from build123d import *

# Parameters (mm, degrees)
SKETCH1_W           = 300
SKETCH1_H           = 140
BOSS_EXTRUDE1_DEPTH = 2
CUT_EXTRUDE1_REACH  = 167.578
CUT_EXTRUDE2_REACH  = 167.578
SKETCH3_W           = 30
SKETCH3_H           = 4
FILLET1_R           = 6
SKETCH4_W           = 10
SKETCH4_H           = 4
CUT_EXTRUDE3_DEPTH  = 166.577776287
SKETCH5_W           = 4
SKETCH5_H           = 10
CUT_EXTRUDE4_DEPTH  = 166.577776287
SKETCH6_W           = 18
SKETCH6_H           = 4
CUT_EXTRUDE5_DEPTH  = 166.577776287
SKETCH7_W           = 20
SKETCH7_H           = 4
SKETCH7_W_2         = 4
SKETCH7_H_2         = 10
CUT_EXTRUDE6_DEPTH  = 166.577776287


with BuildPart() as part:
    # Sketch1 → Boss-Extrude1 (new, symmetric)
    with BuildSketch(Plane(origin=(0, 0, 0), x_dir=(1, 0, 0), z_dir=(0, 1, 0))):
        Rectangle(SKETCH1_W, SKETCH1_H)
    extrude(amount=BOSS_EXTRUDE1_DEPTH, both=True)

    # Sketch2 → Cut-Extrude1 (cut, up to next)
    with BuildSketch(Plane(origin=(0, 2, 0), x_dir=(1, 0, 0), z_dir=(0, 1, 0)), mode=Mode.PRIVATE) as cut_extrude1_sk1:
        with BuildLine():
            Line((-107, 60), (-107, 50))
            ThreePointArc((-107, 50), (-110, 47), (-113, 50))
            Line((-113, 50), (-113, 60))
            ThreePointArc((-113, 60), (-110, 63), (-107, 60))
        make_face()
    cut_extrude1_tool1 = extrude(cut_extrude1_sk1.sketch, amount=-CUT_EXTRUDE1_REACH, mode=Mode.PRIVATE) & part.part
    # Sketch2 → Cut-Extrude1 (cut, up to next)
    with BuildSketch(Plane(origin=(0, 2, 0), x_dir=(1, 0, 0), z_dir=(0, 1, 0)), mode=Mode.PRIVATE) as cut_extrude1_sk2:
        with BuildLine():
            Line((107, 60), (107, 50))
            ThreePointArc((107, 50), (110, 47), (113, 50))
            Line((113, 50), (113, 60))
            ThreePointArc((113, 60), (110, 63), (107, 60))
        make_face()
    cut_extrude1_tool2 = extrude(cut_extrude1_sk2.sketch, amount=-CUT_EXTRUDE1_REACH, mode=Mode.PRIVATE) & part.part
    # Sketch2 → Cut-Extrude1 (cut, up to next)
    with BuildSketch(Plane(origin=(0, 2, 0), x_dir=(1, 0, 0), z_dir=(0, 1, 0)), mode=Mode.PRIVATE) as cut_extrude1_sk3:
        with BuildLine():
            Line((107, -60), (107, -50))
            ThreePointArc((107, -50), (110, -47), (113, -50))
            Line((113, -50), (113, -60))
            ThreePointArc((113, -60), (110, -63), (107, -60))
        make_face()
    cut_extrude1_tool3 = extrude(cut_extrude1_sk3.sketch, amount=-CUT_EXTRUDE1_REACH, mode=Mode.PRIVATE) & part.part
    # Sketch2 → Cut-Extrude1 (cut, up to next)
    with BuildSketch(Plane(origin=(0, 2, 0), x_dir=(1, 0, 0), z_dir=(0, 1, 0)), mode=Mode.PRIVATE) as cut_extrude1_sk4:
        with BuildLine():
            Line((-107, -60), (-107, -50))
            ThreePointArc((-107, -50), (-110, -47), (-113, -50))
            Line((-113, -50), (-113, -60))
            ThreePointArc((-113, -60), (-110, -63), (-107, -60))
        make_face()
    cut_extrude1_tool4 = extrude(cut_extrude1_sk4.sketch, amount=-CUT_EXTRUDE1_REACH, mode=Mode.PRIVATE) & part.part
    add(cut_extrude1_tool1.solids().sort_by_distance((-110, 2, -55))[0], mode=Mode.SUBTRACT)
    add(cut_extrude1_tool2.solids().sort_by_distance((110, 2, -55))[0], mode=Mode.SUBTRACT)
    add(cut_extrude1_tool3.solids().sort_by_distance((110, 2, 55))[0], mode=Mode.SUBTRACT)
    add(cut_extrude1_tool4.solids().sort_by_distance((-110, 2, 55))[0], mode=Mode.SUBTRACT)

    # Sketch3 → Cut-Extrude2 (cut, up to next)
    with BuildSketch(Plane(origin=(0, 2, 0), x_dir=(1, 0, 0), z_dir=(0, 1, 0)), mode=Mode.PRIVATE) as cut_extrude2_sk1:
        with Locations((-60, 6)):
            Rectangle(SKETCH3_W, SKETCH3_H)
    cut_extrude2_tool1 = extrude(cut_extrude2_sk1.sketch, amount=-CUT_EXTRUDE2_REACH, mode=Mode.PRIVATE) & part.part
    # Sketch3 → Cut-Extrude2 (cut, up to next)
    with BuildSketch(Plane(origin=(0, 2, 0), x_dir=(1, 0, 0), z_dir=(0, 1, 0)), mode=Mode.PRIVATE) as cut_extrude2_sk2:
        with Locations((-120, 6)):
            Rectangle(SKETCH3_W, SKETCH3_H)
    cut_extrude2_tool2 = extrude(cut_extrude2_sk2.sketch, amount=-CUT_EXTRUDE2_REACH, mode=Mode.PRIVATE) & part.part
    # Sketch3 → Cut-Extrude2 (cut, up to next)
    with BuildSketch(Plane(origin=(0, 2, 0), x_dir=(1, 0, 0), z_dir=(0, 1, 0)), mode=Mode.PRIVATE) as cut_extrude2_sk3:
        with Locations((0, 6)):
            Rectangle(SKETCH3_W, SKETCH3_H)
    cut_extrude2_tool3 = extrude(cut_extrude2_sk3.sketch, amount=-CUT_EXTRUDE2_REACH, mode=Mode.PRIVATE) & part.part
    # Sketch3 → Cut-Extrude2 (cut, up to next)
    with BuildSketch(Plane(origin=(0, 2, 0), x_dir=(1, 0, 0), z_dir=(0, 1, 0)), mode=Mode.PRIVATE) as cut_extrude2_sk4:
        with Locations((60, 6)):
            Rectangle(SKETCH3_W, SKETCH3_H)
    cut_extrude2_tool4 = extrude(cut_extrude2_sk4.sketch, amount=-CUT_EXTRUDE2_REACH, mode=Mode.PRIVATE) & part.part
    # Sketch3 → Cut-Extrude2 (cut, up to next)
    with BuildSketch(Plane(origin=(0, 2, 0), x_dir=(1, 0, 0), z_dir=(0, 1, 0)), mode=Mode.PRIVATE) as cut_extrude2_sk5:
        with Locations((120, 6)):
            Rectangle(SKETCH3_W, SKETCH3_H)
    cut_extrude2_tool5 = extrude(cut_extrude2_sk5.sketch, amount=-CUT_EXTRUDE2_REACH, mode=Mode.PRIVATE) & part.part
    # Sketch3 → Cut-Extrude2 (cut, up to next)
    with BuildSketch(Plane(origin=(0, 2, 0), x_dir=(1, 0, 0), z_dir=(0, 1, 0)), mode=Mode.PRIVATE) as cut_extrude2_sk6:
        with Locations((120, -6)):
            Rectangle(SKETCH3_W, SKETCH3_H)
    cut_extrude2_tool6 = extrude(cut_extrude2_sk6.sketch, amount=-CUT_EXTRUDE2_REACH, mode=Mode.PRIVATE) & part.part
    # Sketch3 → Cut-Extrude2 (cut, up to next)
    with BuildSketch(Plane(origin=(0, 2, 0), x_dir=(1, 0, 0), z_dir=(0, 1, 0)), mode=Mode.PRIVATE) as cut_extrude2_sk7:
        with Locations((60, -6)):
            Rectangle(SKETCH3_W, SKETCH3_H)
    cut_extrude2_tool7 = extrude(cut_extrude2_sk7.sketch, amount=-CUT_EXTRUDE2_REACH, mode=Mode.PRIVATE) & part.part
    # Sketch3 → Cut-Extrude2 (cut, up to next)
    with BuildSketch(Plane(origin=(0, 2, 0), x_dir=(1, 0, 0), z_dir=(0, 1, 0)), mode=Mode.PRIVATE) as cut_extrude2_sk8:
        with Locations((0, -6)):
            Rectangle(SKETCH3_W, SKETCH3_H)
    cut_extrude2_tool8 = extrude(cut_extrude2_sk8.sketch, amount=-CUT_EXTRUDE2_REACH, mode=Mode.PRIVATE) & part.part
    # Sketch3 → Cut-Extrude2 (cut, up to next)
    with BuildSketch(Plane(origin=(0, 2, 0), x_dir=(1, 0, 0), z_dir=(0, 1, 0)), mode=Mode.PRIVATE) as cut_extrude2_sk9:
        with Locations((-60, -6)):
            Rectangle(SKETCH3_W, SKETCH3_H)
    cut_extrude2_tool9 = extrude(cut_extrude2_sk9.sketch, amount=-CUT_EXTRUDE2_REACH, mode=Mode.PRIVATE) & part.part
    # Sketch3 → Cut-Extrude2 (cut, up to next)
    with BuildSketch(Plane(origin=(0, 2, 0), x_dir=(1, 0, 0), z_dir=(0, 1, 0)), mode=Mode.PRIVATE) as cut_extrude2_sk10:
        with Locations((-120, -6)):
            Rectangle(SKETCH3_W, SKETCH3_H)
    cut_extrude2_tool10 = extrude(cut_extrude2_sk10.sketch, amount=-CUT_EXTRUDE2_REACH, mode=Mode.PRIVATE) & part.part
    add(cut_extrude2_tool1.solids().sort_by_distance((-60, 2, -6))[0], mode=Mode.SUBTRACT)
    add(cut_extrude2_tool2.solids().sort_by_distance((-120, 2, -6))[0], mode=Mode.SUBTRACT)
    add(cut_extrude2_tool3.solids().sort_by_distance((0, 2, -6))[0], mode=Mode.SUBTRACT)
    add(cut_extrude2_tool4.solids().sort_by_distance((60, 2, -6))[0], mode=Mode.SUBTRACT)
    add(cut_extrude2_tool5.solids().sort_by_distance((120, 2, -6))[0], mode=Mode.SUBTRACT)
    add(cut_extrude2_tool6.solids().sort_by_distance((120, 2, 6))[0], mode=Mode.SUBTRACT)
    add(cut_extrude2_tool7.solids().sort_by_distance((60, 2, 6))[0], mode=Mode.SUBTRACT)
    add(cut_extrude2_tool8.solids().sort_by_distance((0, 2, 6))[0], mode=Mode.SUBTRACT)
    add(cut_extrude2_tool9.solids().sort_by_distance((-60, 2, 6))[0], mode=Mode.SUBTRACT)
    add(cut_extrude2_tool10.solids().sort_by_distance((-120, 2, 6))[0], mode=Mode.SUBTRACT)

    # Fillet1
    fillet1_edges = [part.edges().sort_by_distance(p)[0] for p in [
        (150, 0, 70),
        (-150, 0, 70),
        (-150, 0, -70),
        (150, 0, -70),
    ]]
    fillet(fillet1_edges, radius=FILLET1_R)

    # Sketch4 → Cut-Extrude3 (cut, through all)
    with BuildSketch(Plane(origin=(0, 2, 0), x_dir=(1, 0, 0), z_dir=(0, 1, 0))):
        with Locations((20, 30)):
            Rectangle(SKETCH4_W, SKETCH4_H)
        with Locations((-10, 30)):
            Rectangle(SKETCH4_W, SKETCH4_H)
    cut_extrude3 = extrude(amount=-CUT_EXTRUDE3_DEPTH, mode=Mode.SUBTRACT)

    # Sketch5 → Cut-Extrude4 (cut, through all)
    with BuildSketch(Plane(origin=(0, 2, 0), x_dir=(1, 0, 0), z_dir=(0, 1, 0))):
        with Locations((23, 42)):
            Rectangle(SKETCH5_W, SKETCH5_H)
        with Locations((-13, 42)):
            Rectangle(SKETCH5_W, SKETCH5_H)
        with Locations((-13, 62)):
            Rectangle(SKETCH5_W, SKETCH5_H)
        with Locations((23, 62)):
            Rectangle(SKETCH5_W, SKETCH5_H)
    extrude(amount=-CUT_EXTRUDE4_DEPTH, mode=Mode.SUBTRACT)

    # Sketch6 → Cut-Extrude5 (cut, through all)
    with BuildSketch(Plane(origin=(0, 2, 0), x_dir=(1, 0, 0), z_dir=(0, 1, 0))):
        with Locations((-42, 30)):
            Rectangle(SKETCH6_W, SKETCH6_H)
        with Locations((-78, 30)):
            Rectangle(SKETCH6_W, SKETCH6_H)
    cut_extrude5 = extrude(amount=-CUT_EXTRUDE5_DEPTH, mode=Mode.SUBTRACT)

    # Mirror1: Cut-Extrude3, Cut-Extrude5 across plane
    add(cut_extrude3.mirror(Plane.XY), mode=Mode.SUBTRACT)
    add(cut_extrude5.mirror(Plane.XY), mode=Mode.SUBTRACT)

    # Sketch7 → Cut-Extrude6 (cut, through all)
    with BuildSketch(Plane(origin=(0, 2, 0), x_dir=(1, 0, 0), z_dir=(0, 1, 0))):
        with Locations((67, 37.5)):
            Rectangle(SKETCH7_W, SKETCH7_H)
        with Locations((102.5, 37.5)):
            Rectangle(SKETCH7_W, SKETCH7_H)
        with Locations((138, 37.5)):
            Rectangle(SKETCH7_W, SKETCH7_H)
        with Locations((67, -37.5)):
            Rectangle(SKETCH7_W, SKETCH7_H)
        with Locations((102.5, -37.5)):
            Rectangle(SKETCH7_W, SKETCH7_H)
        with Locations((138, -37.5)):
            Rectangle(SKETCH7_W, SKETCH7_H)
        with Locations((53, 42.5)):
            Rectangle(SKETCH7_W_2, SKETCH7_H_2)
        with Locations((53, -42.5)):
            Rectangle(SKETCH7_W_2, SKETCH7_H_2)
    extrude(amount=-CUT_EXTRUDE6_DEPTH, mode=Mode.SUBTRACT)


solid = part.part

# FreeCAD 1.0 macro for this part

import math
import FreeCAD as App
import Part
import Sketcher


def edges_at(feature, points):
    """Names of the edges that pass closest to the given points."""
    edges = feature.Shape.Edges
    near = lambda p: min(range(len(edges)), key=lambda i: edges[i].distToShape(Part.Vertex(*p))[0])
    return sorted({f"Edge{near(p) + 1}" for p in points})


def add_polygon(sketch, points):
    """Adds a closed chain of lines whose ends are joined by coincident constraints."""
    first, n = sketch.GeometryCount, len(points)
    for a, b in zip(points, points[1:] + points[:1]):
        sketch.addGeometry(Part.LineSegment(App.Vector(*a, 0), App.Vector(*b, 0)), False)
    for i in range(n):
        sketch.addConstraint(Sketcher.Constraint("Coincident", first + i, 2, first + (i + 1) % n, 1))

doc = App.newDocument("Part")
body = doc.addObject("PartDesign::Body", "Body")

# Sketch on XZ plane
sketch1 = doc.addObject("Sketcher::SketchObject", "Sketch")
body.addObject(sketch1)
sketch1.AttachmentSupport = (doc.XZ_Plane, [""])
sketch1.MapMode = "FlatFace"
add_polygon(sketch1, [(-150, -70), (-150, 70), (150, 70), (150, -70)])  # lines 0-3
sketch1.addConstraint(Sketcher.Constraint("Vertical", 0))
sketch1.addConstraint(Sketcher.Constraint("Horizontal", 1))
sketch1.addConstraint(Sketcher.Constraint("Vertical", 2))
sketch1.addConstraint(Sketcher.Constraint("Horizontal", 3))
sketch1.addConstraint(Sketcher.Constraint("Symmetric", 0, 2, 2, 2, -1, 1))
sketch1.addConstraint(Sketcher.Constraint("DistanceX", 1, 1, 1, 2, 300.0))
sketch1.addConstraint(Sketcher.Constraint("DistanceY", 0, 1, 0, 2, 140.0))
pad1 = doc.addObject("PartDesign::Pad", "Pad")
body.addObject(pad1)
pad1.Profile = sketch1
pad1.Length = 4
pad1.Midplane = True

# Sketch on XZ plane
sketch2 = doc.addObject("Sketcher::SketchObject", "Sketch001")
body.addObject(sketch2)
sketch2.AttachmentSupport = (doc.XZ_Plane, [""])
sketch2.MapMode = "FlatFace"
sketch2.AttachmentOffset = App.Placement(App.Vector(0, 0, -2), App.Rotation())
sketch2.addGeometry(Part.LineSegment(App.Vector(-107, -50, 0), App.Vector(-107, -60, 0)), False)
sketch2.addGeometry(Part.ArcOfCircle(Part.Circle(App.Vector(-110, -60, 0), App.Vector(0, 0, 1), 3), math.radians(180), math.radians(360)), False)
sketch2.addGeometry(Part.LineSegment(App.Vector(-113, -60, 0), App.Vector(-113, -50, 0)), False)
sketch2.addGeometry(Part.ArcOfCircle(Part.Circle(App.Vector(-110, -50, 0), App.Vector(0, 0, 1), 3), math.radians(0), math.radians(180)), False)
sketch2.addConstraint(Sketcher.Constraint("Tangent", 0, 2, 1, 2))
sketch2.addConstraint(Sketcher.Constraint("Tangent", 1, 1, 2, 1))
sketch2.addConstraint(Sketcher.Constraint("Tangent", 2, 2, 3, 2))
sketch2.addConstraint(Sketcher.Constraint("Tangent", 3, 1, 0, 1))
sketch2.addConstraint(Sketcher.Constraint("Vertical", 0))
sketch2.addConstraint(Sketcher.Constraint("Vertical", 2))
sketch2.addConstraint(Sketcher.Constraint("Radius", 1, 3.0))
sketch2.addConstraint(Sketcher.Constraint("DistanceY", 0, 2, 0, 1, 10.0))
sketch2.addConstraint(Sketcher.Constraint("DistanceX", 1, 3, -1, 1, 110.0))
sketch2.addConstraint(Sketcher.Constraint("DistanceY", 1, 3, -1, 1, 60.0))
pocket1 = doc.addObject("PartDesign::Pocket", "Pocket")
body.addObject(pocket1)
pocket1.Profile = sketch2
pocket1.Type = "UpToFirst"
pocket1.Reversed = True

# Sketch on XZ plane
sketch3 = doc.addObject("Sketcher::SketchObject", "Sketch002")
body.addObject(sketch3)
sketch3.AttachmentSupport = (doc.XZ_Plane, [""])
sketch3.MapMode = "FlatFace"
sketch3.AttachmentOffset = App.Placement(App.Vector(0, 0, -2), App.Rotation())
sketch3.addGeometry(Part.LineSegment(App.Vector(107, -60, 0), App.Vector(107, -50, 0)), False)
sketch3.addGeometry(Part.ArcOfCircle(Part.Circle(App.Vector(110, -50, 0), App.Vector(0, 0, 1), 3), math.radians(0), math.radians(180)), False)
sketch3.addGeometry(Part.LineSegment(App.Vector(113, -50, 0), App.Vector(113, -60, 0)), False)
sketch3.addGeometry(Part.ArcOfCircle(Part.Circle(App.Vector(110, -60, 0), App.Vector(0, 0, 1), 3), math.radians(180), math.radians(360)), False)
sketch3.addConstraint(Sketcher.Constraint("Tangent", 0, 2, 1, 2))
sketch3.addConstraint(Sketcher.Constraint("Tangent", 1, 1, 2, 1))
sketch3.addConstraint(Sketcher.Constraint("Tangent", 2, 2, 3, 2))
sketch3.addConstraint(Sketcher.Constraint("Tangent", 3, 1, 0, 1))
sketch3.addConstraint(Sketcher.Constraint("Vertical", 0))
sketch3.addConstraint(Sketcher.Constraint("Vertical", 2))
sketch3.addConstraint(Sketcher.Constraint("Radius", 1, 3.0))
sketch3.addConstraint(Sketcher.Constraint("DistanceY", 0, 1, 0, 2, 10.0))
sketch3.addConstraint(Sketcher.Constraint("DistanceX", -1, 1, 1, 3, 110.0))
sketch3.addConstraint(Sketcher.Constraint("DistanceY", 1, 3, -1, 1, 50.0))
pocket2 = doc.addObject("PartDesign::Pocket", "Pocket001")
body.addObject(pocket2)
pocket2.Profile = sketch3
pocket2.Type = "UpToFirst"
pocket2.Reversed = True

# Sketch on XZ plane
sketch4 = doc.addObject("Sketcher::SketchObject", "Sketch003")
body.addObject(sketch4)
sketch4.AttachmentSupport = (doc.XZ_Plane, [""])
sketch4.MapMode = "FlatFace"
sketch4.AttachmentOffset = App.Placement(App.Vector(0, 0, -2), App.Rotation())
sketch4.addGeometry(Part.LineSegment(App.Vector(107, 50, 0), App.Vector(107, 60, 0)), False)
sketch4.addGeometry(Part.ArcOfCircle(Part.Circle(App.Vector(110, 60, 0), App.Vector(0, 0, 1), 3), math.radians(0), math.radians(180)), False)
sketch4.addGeometry(Part.LineSegment(App.Vector(113, 60, 0), App.Vector(113, 50, 0)), False)
sketch4.addGeometry(Part.ArcOfCircle(Part.Circle(App.Vector(110, 50, 0), App.Vector(0, 0, 1), 3), math.radians(180), math.radians(360)), False)
sketch4.addConstraint(Sketcher.Constraint("Tangent", 0, 2, 1, 2))
sketch4.addConstraint(Sketcher.Constraint("Tangent", 1, 1, 2, 1))
sketch4.addConstraint(Sketcher.Constraint("Tangent", 2, 2, 3, 2))
sketch4.addConstraint(Sketcher.Constraint("Tangent", 3, 1, 0, 1))
sketch4.addConstraint(Sketcher.Constraint("Vertical", 0))
sketch4.addConstraint(Sketcher.Constraint("Vertical", 2))
sketch4.addConstraint(Sketcher.Constraint("Radius", 1, 3.0))
sketch4.addConstraint(Sketcher.Constraint("DistanceY", 0, 1, 0, 2, 10.0))
sketch4.addConstraint(Sketcher.Constraint("DistanceX", -1, 1, 1, 3, 110.0))
sketch4.addConstraint(Sketcher.Constraint("DistanceY", -1, 1, 1, 3, 60.0))
pocket3 = doc.addObject("PartDesign::Pocket", "Pocket002")
body.addObject(pocket3)
pocket3.Profile = sketch4
pocket3.Type = "UpToFirst"
pocket3.Reversed = True

# Sketch on XZ plane
sketch5 = doc.addObject("Sketcher::SketchObject", "Sketch004")
body.addObject(sketch5)
sketch5.AttachmentSupport = (doc.XZ_Plane, [""])
sketch5.MapMode = "FlatFace"
sketch5.AttachmentOffset = App.Placement(App.Vector(0, 0, -2), App.Rotation())
sketch5.addGeometry(Part.LineSegment(App.Vector(-107, 60, 0), App.Vector(-107, 50, 0)), False)
sketch5.addGeometry(Part.ArcOfCircle(Part.Circle(App.Vector(-110, 50, 0), App.Vector(0, 0, 1), 3), math.radians(180), math.radians(360)), False)
sketch5.addGeometry(Part.LineSegment(App.Vector(-113, 50, 0), App.Vector(-113, 60, 0)), False)
sketch5.addGeometry(Part.ArcOfCircle(Part.Circle(App.Vector(-110, 60, 0), App.Vector(0, 0, 1), 3), math.radians(0), math.radians(180)), False)
sketch5.addConstraint(Sketcher.Constraint("Tangent", 0, 2, 1, 2))
sketch5.addConstraint(Sketcher.Constraint("Tangent", 1, 1, 2, 1))
sketch5.addConstraint(Sketcher.Constraint("Tangent", 2, 2, 3, 2))
sketch5.addConstraint(Sketcher.Constraint("Tangent", 3, 1, 0, 1))
sketch5.addConstraint(Sketcher.Constraint("Vertical", 0))
sketch5.addConstraint(Sketcher.Constraint("Vertical", 2))
sketch5.addConstraint(Sketcher.Constraint("Radius", 1, 3.0))
sketch5.addConstraint(Sketcher.Constraint("DistanceY", 0, 2, 0, 1, 10.0))
sketch5.addConstraint(Sketcher.Constraint("DistanceX", 1, 3, -1, 1, 110.0))
sketch5.addConstraint(Sketcher.Constraint("DistanceY", -1, 1, 1, 3, 50.0))
pocket4 = doc.addObject("PartDesign::Pocket", "Pocket003")
body.addObject(pocket4)
pocket4.Profile = sketch5
pocket4.Type = "UpToFirst"
pocket4.Reversed = True

# Sketch on XZ plane
sketch6 = doc.addObject("Sketcher::SketchObject", "Sketch005")
body.addObject(sketch6)
sketch6.AttachmentSupport = (doc.XZ_Plane, [""])
sketch6.MapMode = "FlatFace"
sketch6.AttachmentOffset = App.Placement(App.Vector(0, 0, -2), App.Rotation())
add_polygon(sketch6, [(-75, -8), (-75, -4), (-45, -4), (-45, -8)])  # lines 0-3
sketch6.addConstraint(Sketcher.Constraint("Vertical", 0))
sketch6.addConstraint(Sketcher.Constraint("Horizontal", 1))
sketch6.addConstraint(Sketcher.Constraint("Vertical", 2))
sketch6.addConstraint(Sketcher.Constraint("Horizontal", 3))
sketch6.addConstraint(Sketcher.Constraint("DistanceX", 1, 1, 1, 2, 30.0))
sketch6.addConstraint(Sketcher.Constraint("DistanceY", 0, 1, 0, 2, 4.0))
sketch6.addConstraint(Sketcher.Constraint("DistanceX", 0, 2, -1, 1, 75.0))
sketch6.addConstraint(Sketcher.Constraint("DistanceY", 0, 2, -1, 1, 4.0))
pocket5 = doc.addObject("PartDesign::Pocket", "Pocket004")
body.addObject(pocket5)
pocket5.Profile = sketch6
pocket5.Type = "UpToFirst"
pocket5.Reversed = True

# Sketch on XZ plane
sketch7 = doc.addObject("Sketcher::SketchObject", "Sketch006")
body.addObject(sketch7)
sketch7.AttachmentSupport = (doc.XZ_Plane, [""])
sketch7.MapMode = "FlatFace"
sketch7.AttachmentOffset = App.Placement(App.Vector(0, 0, -2), App.Rotation())
add_polygon(sketch7, [(-135, -8), (-135, -4), (-105, -4), (-105, -8)])  # lines 0-3
sketch7.addConstraint(Sketcher.Constraint("Vertical", 0))
sketch7.addConstraint(Sketcher.Constraint("Horizontal", 1))
sketch7.addConstraint(Sketcher.Constraint("Vertical", 2))
sketch7.addConstraint(Sketcher.Constraint("Horizontal", 3))
sketch7.addConstraint(Sketcher.Constraint("DistanceX", 1, 1, 1, 2, 30.0))
sketch7.addConstraint(Sketcher.Constraint("DistanceY", 0, 1, 0, 2, 4.0))
sketch7.addConstraint(Sketcher.Constraint("DistanceX", 0, 2, -1, 1, 135.0))
sketch7.addConstraint(Sketcher.Constraint("DistanceY", 0, 2, -1, 1, 4.0))
pocket6 = doc.addObject("PartDesign::Pocket", "Pocket005")
body.addObject(pocket6)
pocket6.Profile = sketch7
pocket6.Type = "UpToFirst"
pocket6.Reversed = True

# Sketch on XZ plane
sketch8 = doc.addObject("Sketcher::SketchObject", "Sketch007")
body.addObject(sketch8)
sketch8.AttachmentSupport = (doc.XZ_Plane, [""])
sketch8.MapMode = "FlatFace"
sketch8.AttachmentOffset = App.Placement(App.Vector(0, 0, -2), App.Rotation())
add_polygon(sketch8, [(-15, -8), (-15, -4), (15, -4), (15, -8)])  # lines 0-3
sketch8.addConstraint(Sketcher.Constraint("Vertical", 0))
sketch8.addConstraint(Sketcher.Constraint("Horizontal", 1))
sketch8.addConstraint(Sketcher.Constraint("Vertical", 2))
sketch8.addConstraint(Sketcher.Constraint("Horizontal", 3))
sketch8.addConstraint(Sketcher.Constraint("DistanceX", 1, 1, 1, 2, 30.0))
sketch8.addConstraint(Sketcher.Constraint("DistanceY", 0, 1, 0, 2, 4.0))
sketch8.addConstraint(Sketcher.Constraint("DistanceX", 0, 2, -1, 1, 15.0))
sketch8.addConstraint(Sketcher.Constraint("DistanceY", 0, 2, -1, 1, 4.0))
pocket7 = doc.addObject("PartDesign::Pocket", "Pocket006")
body.addObject(pocket7)
pocket7.Profile = sketch8
pocket7.Type = "UpToFirst"
pocket7.Reversed = True

# Sketch on XZ plane
sketch9 = doc.addObject("Sketcher::SketchObject", "Sketch008")
body.addObject(sketch9)
sketch9.AttachmentSupport = (doc.XZ_Plane, [""])
sketch9.MapMode = "FlatFace"
sketch9.AttachmentOffset = App.Placement(App.Vector(0, 0, -2), App.Rotation())
add_polygon(sketch9, [(45, -8), (45, -4), (75, -4), (75, -8)])  # lines 0-3
sketch9.addConstraint(Sketcher.Constraint("Vertical", 0))
sketch9.addConstraint(Sketcher.Constraint("Horizontal", 1))
sketch9.addConstraint(Sketcher.Constraint("Vertical", 2))
sketch9.addConstraint(Sketcher.Constraint("Horizontal", 3))
sketch9.addConstraint(Sketcher.Constraint("DistanceX", 1, 1, 1, 2, 30.0))
sketch9.addConstraint(Sketcher.Constraint("DistanceY", 0, 1, 0, 2, 4.0))
sketch9.addConstraint(Sketcher.Constraint("DistanceX", -1, 1, 0, 2, 45.0))
sketch9.addConstraint(Sketcher.Constraint("DistanceY", 0, 2, -1, 1, 4.0))
pocket8 = doc.addObject("PartDesign::Pocket", "Pocket007")
body.addObject(pocket8)
pocket8.Profile = sketch9
pocket8.Type = "UpToFirst"
pocket8.Reversed = True

# Sketch on XZ plane
sketch10 = doc.addObject("Sketcher::SketchObject", "Sketch009")
body.addObject(sketch10)
sketch10.AttachmentSupport = (doc.XZ_Plane, [""])
sketch10.MapMode = "FlatFace"
sketch10.AttachmentOffset = App.Placement(App.Vector(0, 0, -2), App.Rotation())
add_polygon(sketch10, [(105, -8), (105, -4), (135, -4), (135, -8)])  # lines 0-3
sketch10.addConstraint(Sketcher.Constraint("Vertical", 0))
sketch10.addConstraint(Sketcher.Constraint("Horizontal", 1))
sketch10.addConstraint(Sketcher.Constraint("Vertical", 2))
sketch10.addConstraint(Sketcher.Constraint("Horizontal", 3))
sketch10.addConstraint(Sketcher.Constraint("DistanceX", 1, 1, 1, 2, 30.0))
sketch10.addConstraint(Sketcher.Constraint("DistanceY", 0, 1, 0, 2, 4.0))
sketch10.addConstraint(Sketcher.Constraint("DistanceX", -1, 1, 0, 2, 105.0))
sketch10.addConstraint(Sketcher.Constraint("DistanceY", 0, 2, -1, 1, 4.0))
pocket9 = doc.addObject("PartDesign::Pocket", "Pocket008")
body.addObject(pocket9)
pocket9.Profile = sketch10
pocket9.Type = "UpToFirst"
pocket9.Reversed = True

# Sketch on XZ plane
sketch11 = doc.addObject("Sketcher::SketchObject", "Sketch010")
body.addObject(sketch11)
sketch11.AttachmentSupport = (doc.XZ_Plane, [""])
sketch11.MapMode = "FlatFace"
sketch11.AttachmentOffset = App.Placement(App.Vector(0, 0, -2), App.Rotation())
add_polygon(sketch11, [(105, 4), (105, 8), (135, 8), (135, 4)])  # lines 0-3
sketch11.addConstraint(Sketcher.Constraint("Vertical", 0))
sketch11.addConstraint(Sketcher.Constraint("Horizontal", 1))
sketch11.addConstraint(Sketcher.Constraint("Vertical", 2))
sketch11.addConstraint(Sketcher.Constraint("Horizontal", 3))
sketch11.addConstraint(Sketcher.Constraint("DistanceX", 1, 1, 1, 2, 30.0))
sketch11.addConstraint(Sketcher.Constraint("DistanceY", 0, 1, 0, 2, 4.0))
sketch11.addConstraint(Sketcher.Constraint("DistanceX", -1, 1, 0, 2, 105.0))
sketch11.addConstraint(Sketcher.Constraint("DistanceY", -1, 1, 0, 2, 8.0))
pocket10 = doc.addObject("PartDesign::Pocket", "Pocket009")
body.addObject(pocket10)
pocket10.Profile = sketch11
pocket10.Type = "UpToFirst"
pocket10.Reversed = True

# Sketch on XZ plane
sketch12 = doc.addObject("Sketcher::SketchObject", "Sketch011")
body.addObject(sketch12)
sketch12.AttachmentSupport = (doc.XZ_Plane, [""])
sketch12.MapMode = "FlatFace"
sketch12.AttachmentOffset = App.Placement(App.Vector(0, 0, -2), App.Rotation())
add_polygon(sketch12, [(45, 4), (45, 8), (75, 8), (75, 4)])  # lines 0-3
sketch12.addConstraint(Sketcher.Constraint("Vertical", 0))
sketch12.addConstraint(Sketcher.Constraint("Horizontal", 1))
sketch12.addConstraint(Sketcher.Constraint("Vertical", 2))
sketch12.addConstraint(Sketcher.Constraint("Horizontal", 3))
sketch12.addConstraint(Sketcher.Constraint("DistanceX", 1, 1, 1, 2, 30.0))
sketch12.addConstraint(Sketcher.Constraint("DistanceY", 0, 1, 0, 2, 4.0))
sketch12.addConstraint(Sketcher.Constraint("DistanceX", -1, 1, 0, 2, 45.0))
sketch12.addConstraint(Sketcher.Constraint("DistanceY", -1, 1, 0, 2, 8.0))
pocket11 = doc.addObject("PartDesign::Pocket", "Pocket010")
body.addObject(pocket11)
pocket11.Profile = sketch12
pocket11.Type = "UpToFirst"
pocket11.Reversed = True

# Sketch on XZ plane
sketch13 = doc.addObject("Sketcher::SketchObject", "Sketch012")
body.addObject(sketch13)
sketch13.AttachmentSupport = (doc.XZ_Plane, [""])
sketch13.MapMode = "FlatFace"
sketch13.AttachmentOffset = App.Placement(App.Vector(0, 0, -2), App.Rotation())
add_polygon(sketch13, [(-15, 4), (-15, 8), (15, 8), (15, 4)])  # lines 0-3
sketch13.addConstraint(Sketcher.Constraint("Vertical", 0))
sketch13.addConstraint(Sketcher.Constraint("Horizontal", 1))
sketch13.addConstraint(Sketcher.Constraint("Vertical", 2))
sketch13.addConstraint(Sketcher.Constraint("Horizontal", 3))
sketch13.addConstraint(Sketcher.Constraint("DistanceX", 1, 1, 1, 2, 30.0))
sketch13.addConstraint(Sketcher.Constraint("DistanceY", 0, 1, 0, 2, 4.0))
sketch13.addConstraint(Sketcher.Constraint("DistanceX", 0, 2, -1, 1, 15.0))
sketch13.addConstraint(Sketcher.Constraint("DistanceY", -1, 1, 0, 2, 8.0))
pocket12 = doc.addObject("PartDesign::Pocket", "Pocket011")
body.addObject(pocket12)
pocket12.Profile = sketch13
pocket12.Type = "UpToFirst"
pocket12.Reversed = True

# Sketch on XZ plane
sketch14 = doc.addObject("Sketcher::SketchObject", "Sketch013")
body.addObject(sketch14)
sketch14.AttachmentSupport = (doc.XZ_Plane, [""])
sketch14.MapMode = "FlatFace"
sketch14.AttachmentOffset = App.Placement(App.Vector(0, 0, -2), App.Rotation())
add_polygon(sketch14, [(-75, 4), (-75, 8), (-45, 8), (-45, 4)])  # lines 0-3
sketch14.addConstraint(Sketcher.Constraint("Vertical", 0))
sketch14.addConstraint(Sketcher.Constraint("Horizontal", 1))
sketch14.addConstraint(Sketcher.Constraint("Vertical", 2))
sketch14.addConstraint(Sketcher.Constraint("Horizontal", 3))
sketch14.addConstraint(Sketcher.Constraint("DistanceX", 1, 1, 1, 2, 30.0))
sketch14.addConstraint(Sketcher.Constraint("DistanceY", 0, 1, 0, 2, 4.0))
sketch14.addConstraint(Sketcher.Constraint("DistanceX", 0, 2, -1, 1, 75.0))
sketch14.addConstraint(Sketcher.Constraint("DistanceY", -1, 1, 0, 2, 8.0))
pocket13 = doc.addObject("PartDesign::Pocket", "Pocket012")
body.addObject(pocket13)
pocket13.Profile = sketch14
pocket13.Type = "UpToFirst"
pocket13.Reversed = True

# Sketch on XZ plane
sketch15 = doc.addObject("Sketcher::SketchObject", "Sketch014")
body.addObject(sketch15)
sketch15.AttachmentSupport = (doc.XZ_Plane, [""])
sketch15.MapMode = "FlatFace"
sketch15.AttachmentOffset = App.Placement(App.Vector(0, 0, -2), App.Rotation())
add_polygon(sketch15, [(-135, 4), (-135, 8), (-105, 8), (-105, 4)])  # lines 0-3
sketch15.addConstraint(Sketcher.Constraint("Vertical", 0))
sketch15.addConstraint(Sketcher.Constraint("Horizontal", 1))
sketch15.addConstraint(Sketcher.Constraint("Vertical", 2))
sketch15.addConstraint(Sketcher.Constraint("Horizontal", 3))
sketch15.addConstraint(Sketcher.Constraint("DistanceX", 1, 1, 1, 2, 30.0))
sketch15.addConstraint(Sketcher.Constraint("DistanceY", 0, 1, 0, 2, 4.0))
sketch15.addConstraint(Sketcher.Constraint("DistanceX", 0, 2, -1, 1, 135.0))
sketch15.addConstraint(Sketcher.Constraint("DistanceY", -1, 1, 0, 2, 8.0))
pocket14 = doc.addObject("PartDesign::Pocket", "Pocket013")
body.addObject(pocket14)
pocket14.Profile = sketch15
pocket14.Type = "UpToFirst"
pocket14.Reversed = True
doc.recompute()

fillet = doc.addObject("PartDesign::Fillet", "Fillet")
body.addObject(fillet)
fillet.Base = (pocket14, edges_at(pocket14, [
    (150, 0, 70),
    (-150, 0, 70),
    (-150, 0, -70),
    (150, 0, -70),
]))
fillet.Radius = 6

# Sketch on XZ plane
sketch16 = doc.addObject("Sketcher::SketchObject", "Sketch015")
body.addObject(sketch16)
sketch16.AttachmentSupport = (doc.XZ_Plane, [""])
sketch16.MapMode = "FlatFace"
sketch16.AttachmentOffset = App.Placement(App.Vector(0, 0, -2), App.Rotation())
add_polygon(sketch16, [(15, -32), (15, -28), (25, -28), (25, -32)])  # lines 0-3
add_polygon(sketch16, [(-15, -32), (-15, -28), (-5, -28), (-5, -32)])  # lines 4-7
sketch16.addConstraint(Sketcher.Constraint("Vertical", 0))
sketch16.addConstraint(Sketcher.Constraint("Horizontal", 1))
sketch16.addConstraint(Sketcher.Constraint("Vertical", 2))
sketch16.addConstraint(Sketcher.Constraint("Horizontal", 3))
sketch16.addConstraint(Sketcher.Constraint("Vertical", 4))
sketch16.addConstraint(Sketcher.Constraint("Horizontal", 5))
sketch16.addConstraint(Sketcher.Constraint("Vertical", 6))
sketch16.addConstraint(Sketcher.Constraint("Horizontal", 7))
sketch16.addConstraint(Sketcher.Constraint("Symmetric", 0, 2, 4, 2, -2))
sketch16.addConstraint(Sketcher.Constraint("Horizontal", 3, 2, 6, 2))
sketch16.addConstraint(Sketcher.Constraint("Equal", 3, 5))
sketch16.addConstraint(Sketcher.Constraint("DistanceX", 1, 1, 1, 2, 10.0))
sketch16.addConstraint(Sketcher.Constraint("DistanceY", 0, 1, 0, 2, 4.0))
sketch16.addConstraint(Sketcher.Constraint("DistanceX", -1, 1, 0, 2, 15.0))
sketch16.addConstraint(Sketcher.Constraint("DistanceY", 0, 2, -1, 1, 28.0))
pocket15 = doc.addObject("PartDesign::Pocket", "Pocket014")
body.addObject(pocket15)
pocket15.Profile = sketch16
pocket15.Type = "ThroughAll"
pocket15.Reversed = True

# Sketch on XZ plane
sketch17 = doc.addObject("Sketcher::SketchObject", "Sketch016")
body.addObject(sketch17)
sketch17.AttachmentSupport = (doc.XZ_Plane, [""])
sketch17.MapMode = "FlatFace"
sketch17.AttachmentOffset = App.Placement(App.Vector(0, 0, -2), App.Rotation())
add_polygon(sketch17, [(21, -47), (21, -37), (25, -37), (25, -47)])  # lines 0-3
add_polygon(sketch17, [(-15, -47), (-15, -37), (-11, -37), (-11, -47)])  # lines 4-7
add_polygon(sketch17, [(-15, -67), (-15, -57), (-11, -57), (-11, -67)])  # lines 8-11
add_polygon(sketch17, [(21, -67), (21, -57), (25, -57), (25, -67)])  # lines 12-15
sketch17.addConstraint(Sketcher.Constraint("Vertical", 0))
sketch17.addConstraint(Sketcher.Constraint("Horizontal", 1))
sketch17.addConstraint(Sketcher.Constraint("Vertical", 2))
sketch17.addConstraint(Sketcher.Constraint("Horizontal", 3))
sketch17.addConstraint(Sketcher.Constraint("Vertical", 4))
sketch17.addConstraint(Sketcher.Constraint("Horizontal", 5))
sketch17.addConstraint(Sketcher.Constraint("Vertical", 6))
sketch17.addConstraint(Sketcher.Constraint("Horizontal", 7))
sketch17.addConstraint(Sketcher.Constraint("Vertical", 8))
sketch17.addConstraint(Sketcher.Constraint("Horizontal", 9))
sketch17.addConstraint(Sketcher.Constraint("Vertical", 10))
sketch17.addConstraint(Sketcher.Constraint("Horizontal", 11))
sketch17.addConstraint(Sketcher.Constraint("Vertical", 12))
sketch17.addConstraint(Sketcher.Constraint("Horizontal", 13))
sketch17.addConstraint(Sketcher.Constraint("Vertical", 14))
sketch17.addConstraint(Sketcher.Constraint("Horizontal", 15))
sketch17.addConstraint(Sketcher.Constraint("Horizontal", 1, 2, 4, 2))
sketch17.addConstraint(Sketcher.Constraint("Horizontal", 3, 2, 6, 2))
sketch17.addConstraint(Sketcher.Constraint("Horizontal", 9, 2, 12, 2))
sketch17.addConstraint(Sketcher.Constraint("Horizontal", 11, 2, 14, 2))
sketch17.addConstraint(Sketcher.Constraint("Vertical", 7, 2, 8, 2))
sketch17.addConstraint(Sketcher.Constraint("Vertical", 6, 2, 9, 2))
sketch17.addConstraint(Sketcher.Constraint("Vertical", 3, 2, 12, 2))
sketch17.addConstraint(Sketcher.Constraint("Vertical", 2, 2, 13, 2))
sketch17.addConstraint(Sketcher.Constraint("Equal", 3, 5))
sketch17.addConstraint(Sketcher.Constraint("Equal", 6, 8))
sketch17.addConstraint(Sketcher.Constraint("DistanceX", 1, 1, 1, 2, 4.0))
sketch17.addConstraint(Sketcher.Constraint("DistanceY", 0, 1, 0, 2, 10.0))
sketch17.addConstraint(Sketcher.Constraint("DistanceX", -1, 1, 0, 2, 21.0))
sketch17.addConstraint(Sketcher.Constraint("DistanceY", 0, 2, -1, 1, 37.0))
sketch17.addConstraint(Sketcher.Constraint("DistanceX", 4, 2, -1, 1, 15.0))
sketch17.addConstraint(Sketcher.Constraint("DistanceY", 8, 2, -1, 1, 57.0))
pocket16 = doc.addObject("PartDesign::Pocket", "Pocket015")
body.addObject(pocket16)
pocket16.Profile = sketch17
pocket16.Type = "ThroughAll"
pocket16.Reversed = True

# Sketch on XZ plane
sketch18 = doc.addObject("Sketcher::SketchObject", "Sketch017")
body.addObject(sketch18)
sketch18.AttachmentSupport = (doc.XZ_Plane, [""])
sketch18.MapMode = "FlatFace"
sketch18.AttachmentOffset = App.Placement(App.Vector(0, 0, -2), App.Rotation())
add_polygon(sketch18, [(-51, -32), (-51, -28), (-33, -28), (-33, -32)])  # lines 0-3
add_polygon(sketch18, [(-87, -32), (-87, -28), (-69, -28), (-69, -32)])  # lines 4-7
sketch18.addConstraint(Sketcher.Constraint("Vertical", 0))
sketch18.addConstraint(Sketcher.Constraint("Horizontal", 1))
sketch18.addConstraint(Sketcher.Constraint("Vertical", 2))
sketch18.addConstraint(Sketcher.Constraint("Horizontal", 3))
sketch18.addConstraint(Sketcher.Constraint("Vertical", 4))
sketch18.addConstraint(Sketcher.Constraint("Horizontal", 5))
sketch18.addConstraint(Sketcher.Constraint("Vertical", 6))
sketch18.addConstraint(Sketcher.Constraint("Horizontal", 7))
sketch18.addConstraint(Sketcher.Constraint("Horizontal", 1, 2, 4, 2))
sketch18.addConstraint(Sketcher.Constraint("Horizontal", 3, 2, 6, 2))
sketch18.addConstraint(Sketcher.Constraint("Equal", 3, 5))
sketch18.addConstraint(Sketcher.Constraint("DistanceX", 1, 1, 1, 2, 18.0))
sketch18.addConstraint(Sketcher.Constraint("DistanceY", 0, 1, 0, 2, 4.0))
sketch18.addConstraint(Sketcher.Constraint("DistanceX", 0, 2, -1, 1, 51.0))
sketch18.addConstraint(Sketcher.Constraint("DistanceY", 0, 2, -1, 1, 28.0))
sketch18.addConstraint(Sketcher.Constraint("DistanceX", 4, 2, -1, 1, 87.0))
pocket17 = doc.addObject("PartDesign::Pocket", "Pocket016")
body.addObject(pocket17)
pocket17.Profile = sketch18
pocket17.Type = "ThroughAll"
pocket17.Reversed = True
doc.recompute()

mirrored = doc.addObject("PartDesign::Mirrored", "Mirrored")
body.addObject(mirrored)
mirrored.Originals = [pocket15, pocket17]
mirrored.MirrorPlane = (doc.XY_Plane, [""])
body.Tip = mirrored

# Sketch on XZ plane
sketch19 = doc.addObject("Sketcher::SketchObject", "Sketch018")
body.addObject(sketch19)
sketch19.AttachmentSupport = (doc.XZ_Plane, [""])
sketch19.MapMode = "FlatFace"
sketch19.AttachmentOffset = App.Placement(App.Vector(0, 0, -2), App.Rotation())
add_polygon(sketch19, [(57, -39.5), (57, -35.5), (77, -35.5), (77, -39.5)])  # lines 0-3
add_polygon(sketch19, [(92.5, -39.5), (92.5, -35.5), (112.5, -35.5), (112.5, -39.5)])  # lines 4-7
add_polygon(sketch19, [(128, -39.5), (128, -35.5), (148, -35.5), (148, -39.5)])  # lines 8-11
add_polygon(sketch19, [(57, 35.5), (57, 39.5), (77, 39.5), (77, 35.5)])  # lines 12-15
add_polygon(sketch19, [(92.5, 35.5), (92.5, 39.5), (112.5, 39.5), (112.5, 35.5)])  # lines 16-19
add_polygon(sketch19, [(128, 35.5), (128, 39.5), (148, 39.5), (148, 35.5)])  # lines 20-23
add_polygon(sketch19, [(51, -47.5), (51, -37.5), (55, -37.5), (55, -47.5)])  # lines 24-27
add_polygon(sketch19, [(51, 37.5), (51, 47.5), (55, 47.5), (55, 37.5)])  # lines 28-31
sketch19.addConstraint(Sketcher.Constraint("Vertical", 0))
sketch19.addConstraint(Sketcher.Constraint("Horizontal", 1))
sketch19.addConstraint(Sketcher.Constraint("Vertical", 2))
sketch19.addConstraint(Sketcher.Constraint("Horizontal", 3))
sketch19.addConstraint(Sketcher.Constraint("Vertical", 4))
sketch19.addConstraint(Sketcher.Constraint("Horizontal", 5))
sketch19.addConstraint(Sketcher.Constraint("Vertical", 6))
sketch19.addConstraint(Sketcher.Constraint("Horizontal", 7))
sketch19.addConstraint(Sketcher.Constraint("Vertical", 8))
sketch19.addConstraint(Sketcher.Constraint("Horizontal", 9))
sketch19.addConstraint(Sketcher.Constraint("Vertical", 10))
sketch19.addConstraint(Sketcher.Constraint("Horizontal", 11))
sketch19.addConstraint(Sketcher.Constraint("Vertical", 12))
sketch19.addConstraint(Sketcher.Constraint("Horizontal", 13))
sketch19.addConstraint(Sketcher.Constraint("Vertical", 14))
sketch19.addConstraint(Sketcher.Constraint("Horizontal", 15))
sketch19.addConstraint(Sketcher.Constraint("Vertical", 16))
sketch19.addConstraint(Sketcher.Constraint("Horizontal", 17))
sketch19.addConstraint(Sketcher.Constraint("Vertical", 18))
sketch19.addConstraint(Sketcher.Constraint("Horizontal", 19))
sketch19.addConstraint(Sketcher.Constraint("Vertical", 20))
sketch19.addConstraint(Sketcher.Constraint("Horizontal", 21))
sketch19.addConstraint(Sketcher.Constraint("Vertical", 22))
sketch19.addConstraint(Sketcher.Constraint("Horizontal", 23))
sketch19.addConstraint(Sketcher.Constraint("Vertical", 24))
sketch19.addConstraint(Sketcher.Constraint("Horizontal", 25))
sketch19.addConstraint(Sketcher.Constraint("Vertical", 26))
sketch19.addConstraint(Sketcher.Constraint("Horizontal", 27))
sketch19.addConstraint(Sketcher.Constraint("Vertical", 28))
sketch19.addConstraint(Sketcher.Constraint("Horizontal", 29))
sketch19.addConstraint(Sketcher.Constraint("Vertical", 30))
sketch19.addConstraint(Sketcher.Constraint("Horizontal", 31))
sketch19.addConstraint(Sketcher.Constraint("Symmetric", 3, 2, 12, 2, -1))
sketch19.addConstraint(Sketcher.Constraint("Symmetric", 1, 2, 14, 2, -1))
sketch19.addConstraint(Sketcher.Constraint("Symmetric", 7, 2, 16, 2, -1))
sketch19.addConstraint(Sketcher.Constraint("Symmetric", 5, 2, 18, 2, -1))
sketch19.addConstraint(Sketcher.Constraint("Symmetric", 11, 2, 20, 2, -1))
sketch19.addConstraint(Sketcher.Constraint("Symmetric", 9, 2, 22, 2, -1))
sketch19.addConstraint(Sketcher.Constraint("Symmetric", 27, 2, 28, 2, -1))
sketch19.addConstraint(Sketcher.Constraint("Symmetric", 25, 2, 30, 2, -1))
sketch19.addConstraint(Sketcher.Constraint("Horizontal", 1, 2, 4, 2))
sketch19.addConstraint(Sketcher.Constraint("Horizontal", 3, 2, 6, 2))
sketch19.addConstraint(Sketcher.Constraint("Horizontal", 5, 2, 8, 2))
sketch19.addConstraint(Sketcher.Constraint("Horizontal", 7, 2, 10, 2))
sketch19.addConstraint(Sketcher.Constraint("Equal", 3, 5))
sketch19.addConstraint(Sketcher.Constraint("Equal", 7, 9))
sketch19.addConstraint(Sketcher.Constraint("Equal", 31, 0))
sketch19.addConstraint(Sketcher.Constraint("DistanceX", 1, 1, 1, 2, 20.0))
sketch19.addConstraint(Sketcher.Constraint("DistanceX", 25, 1, 25, 2, 4.0))
sketch19.addConstraint(Sketcher.Constraint("DistanceY", 24, 1, 24, 2, 10.0))
sketch19.addConstraint(Sketcher.Constraint("DistanceX", -1, 1, 0, 2, 57.0))
sketch19.addConstraint(Sketcher.Constraint("DistanceX", -1, 1, 8, 2, 128.0))
sketch19.addConstraint(Sketcher.Constraint("DistanceX", -1, 1, 24, 2, 51.0))
sketch19.addConstraint(Sketcher.Constraint("DistanceY", 0, 2, 12, 2, 75.0))
sketch19.addConstraint(Sketcher.Constraint("DistanceY", 24, 2, 0, 2, 2.0))
sketch19.addConstraint(Sketcher.Constraint("DistanceX", -1, 1, 4, 2, 92.5))
pocket18 = doc.addObject("PartDesign::Pocket", "Pocket017")
body.addObject(pocket18)
pocket18.Profile = sketch19
pocket18.Type = "ThroughAll"
pocket18.Reversed = True

doc.recompute()
